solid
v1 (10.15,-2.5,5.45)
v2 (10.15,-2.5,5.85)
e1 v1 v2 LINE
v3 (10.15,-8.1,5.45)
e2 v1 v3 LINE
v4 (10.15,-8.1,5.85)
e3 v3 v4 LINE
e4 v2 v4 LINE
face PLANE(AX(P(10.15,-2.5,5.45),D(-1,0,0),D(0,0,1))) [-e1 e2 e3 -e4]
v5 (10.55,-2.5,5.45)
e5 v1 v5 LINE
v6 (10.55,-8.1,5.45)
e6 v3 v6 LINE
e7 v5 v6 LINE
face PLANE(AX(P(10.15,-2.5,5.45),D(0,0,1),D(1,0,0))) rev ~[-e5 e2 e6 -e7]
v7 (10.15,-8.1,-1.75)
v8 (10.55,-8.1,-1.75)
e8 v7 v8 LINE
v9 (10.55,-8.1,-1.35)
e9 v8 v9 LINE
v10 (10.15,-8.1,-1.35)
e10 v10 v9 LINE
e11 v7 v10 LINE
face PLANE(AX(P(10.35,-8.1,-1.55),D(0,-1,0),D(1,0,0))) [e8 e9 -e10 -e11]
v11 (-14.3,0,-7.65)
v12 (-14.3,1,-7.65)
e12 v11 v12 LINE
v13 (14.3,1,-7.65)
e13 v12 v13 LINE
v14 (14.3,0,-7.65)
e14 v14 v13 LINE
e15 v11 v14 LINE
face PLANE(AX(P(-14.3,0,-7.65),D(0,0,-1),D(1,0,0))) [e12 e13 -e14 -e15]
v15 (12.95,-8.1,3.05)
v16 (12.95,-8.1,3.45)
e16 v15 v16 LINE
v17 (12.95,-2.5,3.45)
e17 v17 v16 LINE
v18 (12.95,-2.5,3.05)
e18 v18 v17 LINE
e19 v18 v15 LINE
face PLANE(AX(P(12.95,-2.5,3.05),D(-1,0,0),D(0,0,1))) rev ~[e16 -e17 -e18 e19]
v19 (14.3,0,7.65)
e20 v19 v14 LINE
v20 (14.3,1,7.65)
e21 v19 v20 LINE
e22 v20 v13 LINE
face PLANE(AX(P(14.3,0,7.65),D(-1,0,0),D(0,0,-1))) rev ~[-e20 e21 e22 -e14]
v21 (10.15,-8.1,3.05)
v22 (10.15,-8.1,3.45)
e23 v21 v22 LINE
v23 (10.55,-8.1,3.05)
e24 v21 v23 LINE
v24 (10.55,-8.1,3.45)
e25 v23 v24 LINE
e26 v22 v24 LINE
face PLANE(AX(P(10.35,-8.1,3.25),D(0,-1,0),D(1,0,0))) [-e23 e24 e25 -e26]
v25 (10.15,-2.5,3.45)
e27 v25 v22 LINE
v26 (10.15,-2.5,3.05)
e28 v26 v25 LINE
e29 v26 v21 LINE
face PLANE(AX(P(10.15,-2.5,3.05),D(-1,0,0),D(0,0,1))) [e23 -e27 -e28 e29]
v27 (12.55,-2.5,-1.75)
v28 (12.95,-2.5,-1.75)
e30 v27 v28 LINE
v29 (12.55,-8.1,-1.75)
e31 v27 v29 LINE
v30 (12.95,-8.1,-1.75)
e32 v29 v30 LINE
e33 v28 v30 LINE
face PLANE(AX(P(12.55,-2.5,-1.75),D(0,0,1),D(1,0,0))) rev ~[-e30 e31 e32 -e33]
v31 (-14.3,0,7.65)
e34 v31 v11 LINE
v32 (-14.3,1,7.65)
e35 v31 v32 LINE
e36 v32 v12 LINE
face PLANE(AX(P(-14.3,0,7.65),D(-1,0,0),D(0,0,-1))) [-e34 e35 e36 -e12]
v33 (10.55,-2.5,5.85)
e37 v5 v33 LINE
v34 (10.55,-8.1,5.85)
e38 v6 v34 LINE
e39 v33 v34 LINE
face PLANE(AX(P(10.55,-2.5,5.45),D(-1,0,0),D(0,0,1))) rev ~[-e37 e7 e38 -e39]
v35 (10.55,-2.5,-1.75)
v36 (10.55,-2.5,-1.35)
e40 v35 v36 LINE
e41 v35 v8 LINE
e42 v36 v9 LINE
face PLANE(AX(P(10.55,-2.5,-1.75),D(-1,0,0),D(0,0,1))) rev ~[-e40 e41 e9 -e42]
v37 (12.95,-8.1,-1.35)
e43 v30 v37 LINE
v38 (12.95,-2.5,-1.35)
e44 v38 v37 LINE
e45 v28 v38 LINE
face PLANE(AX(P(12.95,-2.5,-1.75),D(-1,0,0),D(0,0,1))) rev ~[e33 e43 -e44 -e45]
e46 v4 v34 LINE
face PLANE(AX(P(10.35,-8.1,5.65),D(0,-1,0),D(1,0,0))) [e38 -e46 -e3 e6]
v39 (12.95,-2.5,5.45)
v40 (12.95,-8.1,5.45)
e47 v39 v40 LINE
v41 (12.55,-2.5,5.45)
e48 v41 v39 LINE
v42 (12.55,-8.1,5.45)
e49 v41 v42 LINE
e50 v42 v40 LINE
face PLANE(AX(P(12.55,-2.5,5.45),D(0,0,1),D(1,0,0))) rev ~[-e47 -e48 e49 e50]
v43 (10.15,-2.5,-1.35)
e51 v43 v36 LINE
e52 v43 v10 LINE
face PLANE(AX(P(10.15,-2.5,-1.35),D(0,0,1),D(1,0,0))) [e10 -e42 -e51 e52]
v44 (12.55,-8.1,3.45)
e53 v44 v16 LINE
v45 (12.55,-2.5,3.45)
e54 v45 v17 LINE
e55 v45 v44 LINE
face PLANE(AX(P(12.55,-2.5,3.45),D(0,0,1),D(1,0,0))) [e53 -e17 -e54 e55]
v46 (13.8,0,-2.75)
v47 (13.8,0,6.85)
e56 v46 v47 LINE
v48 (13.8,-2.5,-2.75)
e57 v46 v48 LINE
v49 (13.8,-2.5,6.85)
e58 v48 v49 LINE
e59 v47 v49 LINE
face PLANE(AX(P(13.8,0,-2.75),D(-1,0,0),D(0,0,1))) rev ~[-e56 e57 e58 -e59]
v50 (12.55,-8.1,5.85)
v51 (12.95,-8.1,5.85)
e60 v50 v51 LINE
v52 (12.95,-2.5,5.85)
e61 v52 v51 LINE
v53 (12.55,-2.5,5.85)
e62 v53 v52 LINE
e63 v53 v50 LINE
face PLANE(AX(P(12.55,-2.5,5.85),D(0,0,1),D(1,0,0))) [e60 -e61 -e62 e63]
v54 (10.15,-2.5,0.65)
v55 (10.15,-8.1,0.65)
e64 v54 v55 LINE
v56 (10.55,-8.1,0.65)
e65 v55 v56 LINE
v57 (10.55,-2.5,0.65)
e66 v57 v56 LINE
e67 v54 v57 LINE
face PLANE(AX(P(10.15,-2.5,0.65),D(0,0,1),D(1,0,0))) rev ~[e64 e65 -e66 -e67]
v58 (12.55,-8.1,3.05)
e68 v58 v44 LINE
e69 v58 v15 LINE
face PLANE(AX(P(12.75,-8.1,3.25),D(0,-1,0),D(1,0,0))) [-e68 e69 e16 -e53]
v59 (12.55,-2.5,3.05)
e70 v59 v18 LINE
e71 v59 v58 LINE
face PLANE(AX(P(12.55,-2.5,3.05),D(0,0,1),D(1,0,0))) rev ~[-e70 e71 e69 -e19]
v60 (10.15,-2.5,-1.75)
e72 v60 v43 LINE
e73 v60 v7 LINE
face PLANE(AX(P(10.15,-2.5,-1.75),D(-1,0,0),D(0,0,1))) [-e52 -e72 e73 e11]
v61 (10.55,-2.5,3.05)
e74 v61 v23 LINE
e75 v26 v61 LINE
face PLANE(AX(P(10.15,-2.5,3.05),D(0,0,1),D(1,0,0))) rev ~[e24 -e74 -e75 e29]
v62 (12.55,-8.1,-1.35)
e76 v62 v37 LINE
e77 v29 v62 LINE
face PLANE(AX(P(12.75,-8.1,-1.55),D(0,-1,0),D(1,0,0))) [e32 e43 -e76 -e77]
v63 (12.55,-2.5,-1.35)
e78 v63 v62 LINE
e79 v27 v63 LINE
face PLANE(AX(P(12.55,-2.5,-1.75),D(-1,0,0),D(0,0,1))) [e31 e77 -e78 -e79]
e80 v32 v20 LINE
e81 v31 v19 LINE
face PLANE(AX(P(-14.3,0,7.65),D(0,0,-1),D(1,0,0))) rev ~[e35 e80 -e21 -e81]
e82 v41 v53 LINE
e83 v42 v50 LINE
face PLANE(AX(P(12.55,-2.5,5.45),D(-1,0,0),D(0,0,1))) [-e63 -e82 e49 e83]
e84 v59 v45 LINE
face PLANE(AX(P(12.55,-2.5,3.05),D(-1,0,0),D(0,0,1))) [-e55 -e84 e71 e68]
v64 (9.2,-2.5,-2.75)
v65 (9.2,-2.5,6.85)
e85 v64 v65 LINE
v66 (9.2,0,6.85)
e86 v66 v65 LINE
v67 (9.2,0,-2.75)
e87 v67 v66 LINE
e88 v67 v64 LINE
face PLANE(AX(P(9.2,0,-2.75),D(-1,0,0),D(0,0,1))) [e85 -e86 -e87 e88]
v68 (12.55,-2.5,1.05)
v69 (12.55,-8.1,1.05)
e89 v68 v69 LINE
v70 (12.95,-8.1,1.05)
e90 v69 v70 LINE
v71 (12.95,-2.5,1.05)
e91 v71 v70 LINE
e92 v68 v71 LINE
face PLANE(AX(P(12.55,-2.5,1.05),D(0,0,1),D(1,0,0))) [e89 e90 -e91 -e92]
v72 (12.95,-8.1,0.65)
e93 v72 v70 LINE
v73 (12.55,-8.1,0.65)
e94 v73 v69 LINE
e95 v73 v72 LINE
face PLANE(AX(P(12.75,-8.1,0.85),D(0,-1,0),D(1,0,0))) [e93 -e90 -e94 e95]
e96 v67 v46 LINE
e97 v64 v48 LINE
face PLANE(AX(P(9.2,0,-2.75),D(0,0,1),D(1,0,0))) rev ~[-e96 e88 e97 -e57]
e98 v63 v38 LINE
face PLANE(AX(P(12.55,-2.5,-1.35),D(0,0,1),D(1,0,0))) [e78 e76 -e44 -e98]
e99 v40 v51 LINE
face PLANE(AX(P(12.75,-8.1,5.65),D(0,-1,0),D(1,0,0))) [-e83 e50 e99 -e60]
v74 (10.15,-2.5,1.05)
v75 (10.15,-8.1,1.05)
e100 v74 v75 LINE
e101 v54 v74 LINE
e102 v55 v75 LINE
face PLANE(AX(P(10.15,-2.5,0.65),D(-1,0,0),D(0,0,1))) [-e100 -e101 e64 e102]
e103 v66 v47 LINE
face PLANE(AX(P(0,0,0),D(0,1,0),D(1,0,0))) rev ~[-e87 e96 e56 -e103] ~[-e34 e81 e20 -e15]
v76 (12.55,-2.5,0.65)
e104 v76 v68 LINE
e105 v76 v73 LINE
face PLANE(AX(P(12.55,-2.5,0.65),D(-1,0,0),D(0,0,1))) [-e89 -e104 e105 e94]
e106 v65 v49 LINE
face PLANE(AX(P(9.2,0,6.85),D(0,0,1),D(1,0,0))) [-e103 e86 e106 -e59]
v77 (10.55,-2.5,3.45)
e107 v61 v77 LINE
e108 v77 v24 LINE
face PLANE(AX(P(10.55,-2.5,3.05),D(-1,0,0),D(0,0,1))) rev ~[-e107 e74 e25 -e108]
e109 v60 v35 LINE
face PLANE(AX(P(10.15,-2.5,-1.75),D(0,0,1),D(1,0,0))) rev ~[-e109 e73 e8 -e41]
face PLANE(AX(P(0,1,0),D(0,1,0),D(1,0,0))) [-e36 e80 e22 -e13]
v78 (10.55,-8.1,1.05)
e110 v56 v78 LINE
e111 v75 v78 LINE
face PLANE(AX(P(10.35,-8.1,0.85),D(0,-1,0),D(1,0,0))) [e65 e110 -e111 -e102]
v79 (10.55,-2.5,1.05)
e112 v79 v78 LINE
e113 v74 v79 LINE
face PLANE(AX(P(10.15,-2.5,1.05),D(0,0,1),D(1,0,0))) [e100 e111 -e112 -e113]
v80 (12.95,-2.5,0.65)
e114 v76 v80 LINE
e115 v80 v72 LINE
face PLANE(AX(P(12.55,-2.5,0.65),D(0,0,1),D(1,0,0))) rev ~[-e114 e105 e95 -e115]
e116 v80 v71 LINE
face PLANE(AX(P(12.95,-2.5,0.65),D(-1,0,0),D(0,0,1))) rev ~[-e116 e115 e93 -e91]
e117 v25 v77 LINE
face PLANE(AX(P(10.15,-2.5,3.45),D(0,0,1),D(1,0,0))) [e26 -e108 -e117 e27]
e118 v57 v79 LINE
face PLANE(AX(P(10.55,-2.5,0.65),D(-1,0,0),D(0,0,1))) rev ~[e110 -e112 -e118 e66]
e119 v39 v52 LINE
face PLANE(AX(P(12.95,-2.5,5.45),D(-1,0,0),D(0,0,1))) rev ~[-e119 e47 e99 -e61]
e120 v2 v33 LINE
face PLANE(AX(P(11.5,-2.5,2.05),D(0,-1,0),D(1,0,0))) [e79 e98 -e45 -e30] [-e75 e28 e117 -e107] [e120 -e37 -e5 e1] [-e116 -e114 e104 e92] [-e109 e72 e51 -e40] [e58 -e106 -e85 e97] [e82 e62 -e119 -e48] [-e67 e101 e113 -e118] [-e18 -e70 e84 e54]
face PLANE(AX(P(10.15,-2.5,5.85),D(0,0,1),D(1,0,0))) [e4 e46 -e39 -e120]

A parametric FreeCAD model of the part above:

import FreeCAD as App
import Part
import Sketcher
from FreeCAD import Vector


def add_polygon(sketch, points):
    """Adds a closed chain of lines whose ends are joined by coincident constraints."""
    first, n = sketch.GeometryCount, len(points)
    for a, b in zip(points, points[1:] + points[:1]):
        sketch.addGeometry(Part.LineSegment(App.Vector(*a, 0), App.Vector(*b, 0)), False)
    for i in range(n):
        sketch.addConstraint(Sketcher.Constraint("Coincident", first + i, 2, first + (i + 1) % n, 1))

doc = App.newDocument("Part")
body = doc.addObject("PartDesign::Body", "Body")

sketch1 = doc.addObject("Sketcher::SketchObject", "Sketch")
body.addObject(sketch1)
sketch1.AttachmentSupport = (doc.XZ_Plane, [""])
sketch1.MapMode = "FlatFace"
add_polygon(sketch1, [(-14.3, -7.65), (-14.3, 7.65), (14.3, 7.65), (14.3, -7.65)])
sketch1.addConstraint(Sketcher.Constraint("Vertical", 0))
sketch1.addConstraint(Sketcher.Constraint("Horizontal", 1))
sketch1.addConstraint(Sketcher.Constraint("Vertical", 2))
sketch1.addConstraint(Sketcher.Constraint("Horizontal", 3))
sketch1.addConstraint(Sketcher.Constraint("Symmetric", 0, 2, 2, 2, -1, 1))
sketch1.addConstraint(Sketcher.Constraint("DistanceX", 1, 1, 1, 2, 28.6))
sketch1.addConstraint(Sketcher.Constraint("DistanceY", 0, 1, 0, 2, 15.3))
pad1 = doc.addObject("PartDesign::Pad", "Pad")
body.addObject(pad1)
pad1.Profile = sketch1
pad1.Length = 1
pad1.Reversed = True

sketch2 = doc.addObject("Sketcher::SketchObject", "Sketch001")
body.addObject(sketch2)
sketch2.AttachmentSupport = (doc.XZ_Plane, [""])
sketch2.MapMode = "FlatFace"
add_polygon(sketch2, [(9.2, 6.85), (9.2, -2.75), (13.8, -2.75), (13.8, 6.85)])
sketch2.addConstraint(Sketcher.Constraint("Vertical", 0))
sketch2.addConstraint(Sketcher.Constraint("Horizontal", 1))
sketch2.addConstraint(Sketcher.Constraint("Vertical", 2))
sketch2.addConstraint(Sketcher.Constraint("Horizontal", 3))
sketch2.addConstraint(Sketcher.Constraint("DistanceX", 1, 1, 1, 2, 4.6))
sketch2.addConstraint(Sketcher.Constraint("DistanceY", 0, 2, 0, 1, 9.6))
sketch2.addConstraint(Sketcher.Constraint("DistanceX", -1, 1, 0, 2, 9.2))
sketch2.addConstraint(Sketcher.Constraint("DistanceY", 0, 2, -1, 1, 2.75))
pad2 = doc.addObject("PartDesign::Pad", "Pad001")
body.addObject(pad2)
pad2.Profile = sketch2
pad2.Length = 2.5

sketch3 = doc.addObject("Sketcher::SketchObject", "Sketch002")
body.addObject(sketch3)
sketch3.AttachmentSupport = (doc.XZ_Plane, [""])
sketch3.MapMode = "FlatFace"
sketch3.AttachmentOffset = App.Placement(Vector(0, 0, 2.5), App.Rotation())
add_polygon(sketch3, [(12.55, 5.85), (12.55, 5.45), (12.95, 5.45), (12.95, 5.85)])
add_polygon(sketch3, [(10.15, 5.85), (10.15, 5.45), (10.55, 5.45), (10.55, 5.85)])
add_polygon(sketch3, [(12.55, 3.45), (12.55, 3.05), (12.95, 3.05), (12.95, 3.45)])
add_polygon(sketch3, [(12.55, 1.05), (12.55, 0.65), (12.95, 0.65), (12.95, 1.05)])
add_polygon(sketch3, [(12.55, -1.35), (12.55, -1.75), (12.95, -1.75), (12.95, -1.35)])
add_polygon(sketch3, [(10.15, 3.45), (10.15, 3.05), (10.55, 3.05), (10.55, 3.45)])
add_polygon(sketch3, [(10.15, 1.05), (10.15, 0.65), (10.55, 0.65), (10.55, 1.05)])
add_polygon(sketch3, [(10.15, -1.35), (10.15, -1.75), (10.55, -1.75), (10.55, -1.35)])
sketch3.addConstraint(Sketcher.Constraint("Vertical", 0))
sketch3.addConstraint(Sketcher.Constraint("Horizontal", 1))
sketch3.addConstraint(Sketcher.Constraint("Vertical", 2))
sketch3.addConstraint(Sketcher.Constraint("Horizontal", 3))
sketch3.addConstraint(Sketcher.Constraint("Vertical", 4))
sketch3.addConstraint(Sketcher.Constraint("Horizontal", 5))
sketch3.addConstraint(Sketcher.Constraint("Vertical", 6))
sketch3.addConstraint(Sketcher.Constraint("Horizontal", 7))
sketch3.addConstraint(Sketcher.Constraint("Vertical", 8))
sketch3.addConstraint(Sketcher.Constraint("Horizontal", 9))
sketch3.addConstraint(Sketcher.Constraint("Vertical", 10))
sketch3.addConstraint(Sketcher.Constraint("Horizontal", 11))
sketch3.addConstraint(Sketcher.Constraint("Vertical", 12))
sketch3.addConstraint(Sketcher.Constraint("Horizontal", 13))
sketch3.addConstraint(Sketcher.Constraint("Vertical", 14))
sketch3.addConstraint(Sketcher.Constraint("Horizontal", 15))
sketch3.addConstraint(Sketcher.Constraint("Vertical", 16))
sketch3.addConstraint(Sketcher.Constraint("Horizontal", 17))
sketch3.addConstraint(Sketcher.Constraint("Vertical", 18))
sketch3.addConstraint(Sketcher.Constraint("Horizontal", 19))
sketch3.addConstraint(Sketcher.Constraint("Vertical", 20))
sketch3.addConstraint(Sketcher.Constraint("Horizontal", 21))
sketch3.addConstraint(Sketcher.Constraint("Vertical", 22))
sketch3.addConstraint(Sketcher.Constraint("Horizontal", 23))
sketch3.addConstraint(Sketcher.Constraint("Vertical", 24))
sketch3.addConstraint(Sketcher.Constraint("Horizontal", 25))
sketch3.addConstraint(Sketcher.Constraint("Vertical", 26))
sketch3.addConstraint(Sketcher.Constraint("Horizontal", 27))
sketch3.addConstraint(Sketcher.Constraint("Vertical", 28))
sketch3.addConstraint(Sketcher.Constraint("Horizontal", 29))
sketch3.addConstraint(Sketcher.Constraint("Vertical", 30))
sketch3.addConstraint(Sketcher.Constraint("Horizontal", 31))
sketch3.addConstraint(Sketcher.Constraint("Horizontal", 1, 2, 4, 2))
sketch3.addConstraint(Sketcher.Constraint("Horizontal", 3, 2, 6, 2))
sketch3.addConstraint(Sketcher.Constraint("Horizontal", 9, 2, 20, 2))
sketch3.addConstraint(Sketcher.Constraint("Horizontal", 11, 2, 22, 2))
sketch3.addConstraint(Sketcher.Constraint("Horizontal", 13, 2, 24, 2))
sketch3.addConstraint(Sketcher.Constraint("Horizontal", 15, 2, 26, 2))
sketch3.addConstraint(Sketcher.Constraint("Horizontal", 17, 2, 28, 2))
sketch3.addConstraint(Sketcher.Constraint("Horizontal", 19, 2, 30, 2))
sketch3.addConstraint(Sketcher.Constraint("Vertical", 3, 2, 8, 2))
sketch3.addConstraint(Sketcher.Constraint("Vertical", 2, 2, 9, 2))
sketch3.addConstraint(Sketcher.Constraint("Vertical", 11, 2, 12, 2))
sketch3.addConstraint(Sketcher.Constraint("Vertical", 10, 2, 13, 2))
sketch3.addConstraint(Sketcher.Constraint("Vertical", 15, 2, 16, 2))
sketch3.addConstraint(Sketcher.Constraint("Vertical", 14, 2, 17, 2))
sketch3.addConstraint(Sketcher.Constraint("Vertical", 7, 2, 20, 2))
sketch3.addConstraint(Sketcher.Constraint("Vertical", 6, 2, 21, 2))
sketch3.addConstraint(Sketcher.Constraint("Vertical", 23, 2, 24, 2))
sketch3.addConstraint(Sketcher.Constraint("Vertical", 22, 2, 25, 2))
sketch3.addConstraint(Sketcher.Constraint("Vertical", 27, 2, 28, 2))
sketch3.addConstraint(Sketcher.Constraint("Vertical", 26, 2, 29, 2))
sketch3.addConstraint(Sketcher.Constraint("Equal", 3, 5))
sketch3.addConstraint(Sketcher.Constraint("Equal", 31, 0))
sketch3.addConstraint(Sketcher.Constraint("Equal", 6, 8))
sketch3.addConstraint(Sketcher.Constraint("Equal", 10, 12))
sketch3.addConstraint(Sketcher.Constraint("Equal", 14, 16))
sketch3.addConstraint(Sketcher.Constraint("DistanceX", 1, 1, 1, 2, 0.4))
sketch3.addConstraint(Sketcher.Constraint("DistanceX", 5, 2, 0, 2, 2.0))
sketch3.addConstraint(Sketcher.Constraint("DistanceY", 10, 2, 1, 2, 2.0))
sketch3.addConstraint(Sketcher.Constraint("DistanceY", 14, 2, 9, 2, 2.0))
sketch3.addConstraint(Sketcher.Constraint("DistanceY", 18, 2, 13, 2, 2.0))
sketch3.addConstraint(Sketcher.Constraint("DistanceX", -1, 1, 0, 2, 12.55))
sketch3.addConstraint(Sketcher.Constraint("DistanceY", -1, 1, 0, 2, 5.45))
pad3 = doc.addObject("PartDesign::Pad", "Pad002")
body.addObject(pad3)
pad3.Profile = sketch3
pad3.Length = 5.6

doc.recompute()
